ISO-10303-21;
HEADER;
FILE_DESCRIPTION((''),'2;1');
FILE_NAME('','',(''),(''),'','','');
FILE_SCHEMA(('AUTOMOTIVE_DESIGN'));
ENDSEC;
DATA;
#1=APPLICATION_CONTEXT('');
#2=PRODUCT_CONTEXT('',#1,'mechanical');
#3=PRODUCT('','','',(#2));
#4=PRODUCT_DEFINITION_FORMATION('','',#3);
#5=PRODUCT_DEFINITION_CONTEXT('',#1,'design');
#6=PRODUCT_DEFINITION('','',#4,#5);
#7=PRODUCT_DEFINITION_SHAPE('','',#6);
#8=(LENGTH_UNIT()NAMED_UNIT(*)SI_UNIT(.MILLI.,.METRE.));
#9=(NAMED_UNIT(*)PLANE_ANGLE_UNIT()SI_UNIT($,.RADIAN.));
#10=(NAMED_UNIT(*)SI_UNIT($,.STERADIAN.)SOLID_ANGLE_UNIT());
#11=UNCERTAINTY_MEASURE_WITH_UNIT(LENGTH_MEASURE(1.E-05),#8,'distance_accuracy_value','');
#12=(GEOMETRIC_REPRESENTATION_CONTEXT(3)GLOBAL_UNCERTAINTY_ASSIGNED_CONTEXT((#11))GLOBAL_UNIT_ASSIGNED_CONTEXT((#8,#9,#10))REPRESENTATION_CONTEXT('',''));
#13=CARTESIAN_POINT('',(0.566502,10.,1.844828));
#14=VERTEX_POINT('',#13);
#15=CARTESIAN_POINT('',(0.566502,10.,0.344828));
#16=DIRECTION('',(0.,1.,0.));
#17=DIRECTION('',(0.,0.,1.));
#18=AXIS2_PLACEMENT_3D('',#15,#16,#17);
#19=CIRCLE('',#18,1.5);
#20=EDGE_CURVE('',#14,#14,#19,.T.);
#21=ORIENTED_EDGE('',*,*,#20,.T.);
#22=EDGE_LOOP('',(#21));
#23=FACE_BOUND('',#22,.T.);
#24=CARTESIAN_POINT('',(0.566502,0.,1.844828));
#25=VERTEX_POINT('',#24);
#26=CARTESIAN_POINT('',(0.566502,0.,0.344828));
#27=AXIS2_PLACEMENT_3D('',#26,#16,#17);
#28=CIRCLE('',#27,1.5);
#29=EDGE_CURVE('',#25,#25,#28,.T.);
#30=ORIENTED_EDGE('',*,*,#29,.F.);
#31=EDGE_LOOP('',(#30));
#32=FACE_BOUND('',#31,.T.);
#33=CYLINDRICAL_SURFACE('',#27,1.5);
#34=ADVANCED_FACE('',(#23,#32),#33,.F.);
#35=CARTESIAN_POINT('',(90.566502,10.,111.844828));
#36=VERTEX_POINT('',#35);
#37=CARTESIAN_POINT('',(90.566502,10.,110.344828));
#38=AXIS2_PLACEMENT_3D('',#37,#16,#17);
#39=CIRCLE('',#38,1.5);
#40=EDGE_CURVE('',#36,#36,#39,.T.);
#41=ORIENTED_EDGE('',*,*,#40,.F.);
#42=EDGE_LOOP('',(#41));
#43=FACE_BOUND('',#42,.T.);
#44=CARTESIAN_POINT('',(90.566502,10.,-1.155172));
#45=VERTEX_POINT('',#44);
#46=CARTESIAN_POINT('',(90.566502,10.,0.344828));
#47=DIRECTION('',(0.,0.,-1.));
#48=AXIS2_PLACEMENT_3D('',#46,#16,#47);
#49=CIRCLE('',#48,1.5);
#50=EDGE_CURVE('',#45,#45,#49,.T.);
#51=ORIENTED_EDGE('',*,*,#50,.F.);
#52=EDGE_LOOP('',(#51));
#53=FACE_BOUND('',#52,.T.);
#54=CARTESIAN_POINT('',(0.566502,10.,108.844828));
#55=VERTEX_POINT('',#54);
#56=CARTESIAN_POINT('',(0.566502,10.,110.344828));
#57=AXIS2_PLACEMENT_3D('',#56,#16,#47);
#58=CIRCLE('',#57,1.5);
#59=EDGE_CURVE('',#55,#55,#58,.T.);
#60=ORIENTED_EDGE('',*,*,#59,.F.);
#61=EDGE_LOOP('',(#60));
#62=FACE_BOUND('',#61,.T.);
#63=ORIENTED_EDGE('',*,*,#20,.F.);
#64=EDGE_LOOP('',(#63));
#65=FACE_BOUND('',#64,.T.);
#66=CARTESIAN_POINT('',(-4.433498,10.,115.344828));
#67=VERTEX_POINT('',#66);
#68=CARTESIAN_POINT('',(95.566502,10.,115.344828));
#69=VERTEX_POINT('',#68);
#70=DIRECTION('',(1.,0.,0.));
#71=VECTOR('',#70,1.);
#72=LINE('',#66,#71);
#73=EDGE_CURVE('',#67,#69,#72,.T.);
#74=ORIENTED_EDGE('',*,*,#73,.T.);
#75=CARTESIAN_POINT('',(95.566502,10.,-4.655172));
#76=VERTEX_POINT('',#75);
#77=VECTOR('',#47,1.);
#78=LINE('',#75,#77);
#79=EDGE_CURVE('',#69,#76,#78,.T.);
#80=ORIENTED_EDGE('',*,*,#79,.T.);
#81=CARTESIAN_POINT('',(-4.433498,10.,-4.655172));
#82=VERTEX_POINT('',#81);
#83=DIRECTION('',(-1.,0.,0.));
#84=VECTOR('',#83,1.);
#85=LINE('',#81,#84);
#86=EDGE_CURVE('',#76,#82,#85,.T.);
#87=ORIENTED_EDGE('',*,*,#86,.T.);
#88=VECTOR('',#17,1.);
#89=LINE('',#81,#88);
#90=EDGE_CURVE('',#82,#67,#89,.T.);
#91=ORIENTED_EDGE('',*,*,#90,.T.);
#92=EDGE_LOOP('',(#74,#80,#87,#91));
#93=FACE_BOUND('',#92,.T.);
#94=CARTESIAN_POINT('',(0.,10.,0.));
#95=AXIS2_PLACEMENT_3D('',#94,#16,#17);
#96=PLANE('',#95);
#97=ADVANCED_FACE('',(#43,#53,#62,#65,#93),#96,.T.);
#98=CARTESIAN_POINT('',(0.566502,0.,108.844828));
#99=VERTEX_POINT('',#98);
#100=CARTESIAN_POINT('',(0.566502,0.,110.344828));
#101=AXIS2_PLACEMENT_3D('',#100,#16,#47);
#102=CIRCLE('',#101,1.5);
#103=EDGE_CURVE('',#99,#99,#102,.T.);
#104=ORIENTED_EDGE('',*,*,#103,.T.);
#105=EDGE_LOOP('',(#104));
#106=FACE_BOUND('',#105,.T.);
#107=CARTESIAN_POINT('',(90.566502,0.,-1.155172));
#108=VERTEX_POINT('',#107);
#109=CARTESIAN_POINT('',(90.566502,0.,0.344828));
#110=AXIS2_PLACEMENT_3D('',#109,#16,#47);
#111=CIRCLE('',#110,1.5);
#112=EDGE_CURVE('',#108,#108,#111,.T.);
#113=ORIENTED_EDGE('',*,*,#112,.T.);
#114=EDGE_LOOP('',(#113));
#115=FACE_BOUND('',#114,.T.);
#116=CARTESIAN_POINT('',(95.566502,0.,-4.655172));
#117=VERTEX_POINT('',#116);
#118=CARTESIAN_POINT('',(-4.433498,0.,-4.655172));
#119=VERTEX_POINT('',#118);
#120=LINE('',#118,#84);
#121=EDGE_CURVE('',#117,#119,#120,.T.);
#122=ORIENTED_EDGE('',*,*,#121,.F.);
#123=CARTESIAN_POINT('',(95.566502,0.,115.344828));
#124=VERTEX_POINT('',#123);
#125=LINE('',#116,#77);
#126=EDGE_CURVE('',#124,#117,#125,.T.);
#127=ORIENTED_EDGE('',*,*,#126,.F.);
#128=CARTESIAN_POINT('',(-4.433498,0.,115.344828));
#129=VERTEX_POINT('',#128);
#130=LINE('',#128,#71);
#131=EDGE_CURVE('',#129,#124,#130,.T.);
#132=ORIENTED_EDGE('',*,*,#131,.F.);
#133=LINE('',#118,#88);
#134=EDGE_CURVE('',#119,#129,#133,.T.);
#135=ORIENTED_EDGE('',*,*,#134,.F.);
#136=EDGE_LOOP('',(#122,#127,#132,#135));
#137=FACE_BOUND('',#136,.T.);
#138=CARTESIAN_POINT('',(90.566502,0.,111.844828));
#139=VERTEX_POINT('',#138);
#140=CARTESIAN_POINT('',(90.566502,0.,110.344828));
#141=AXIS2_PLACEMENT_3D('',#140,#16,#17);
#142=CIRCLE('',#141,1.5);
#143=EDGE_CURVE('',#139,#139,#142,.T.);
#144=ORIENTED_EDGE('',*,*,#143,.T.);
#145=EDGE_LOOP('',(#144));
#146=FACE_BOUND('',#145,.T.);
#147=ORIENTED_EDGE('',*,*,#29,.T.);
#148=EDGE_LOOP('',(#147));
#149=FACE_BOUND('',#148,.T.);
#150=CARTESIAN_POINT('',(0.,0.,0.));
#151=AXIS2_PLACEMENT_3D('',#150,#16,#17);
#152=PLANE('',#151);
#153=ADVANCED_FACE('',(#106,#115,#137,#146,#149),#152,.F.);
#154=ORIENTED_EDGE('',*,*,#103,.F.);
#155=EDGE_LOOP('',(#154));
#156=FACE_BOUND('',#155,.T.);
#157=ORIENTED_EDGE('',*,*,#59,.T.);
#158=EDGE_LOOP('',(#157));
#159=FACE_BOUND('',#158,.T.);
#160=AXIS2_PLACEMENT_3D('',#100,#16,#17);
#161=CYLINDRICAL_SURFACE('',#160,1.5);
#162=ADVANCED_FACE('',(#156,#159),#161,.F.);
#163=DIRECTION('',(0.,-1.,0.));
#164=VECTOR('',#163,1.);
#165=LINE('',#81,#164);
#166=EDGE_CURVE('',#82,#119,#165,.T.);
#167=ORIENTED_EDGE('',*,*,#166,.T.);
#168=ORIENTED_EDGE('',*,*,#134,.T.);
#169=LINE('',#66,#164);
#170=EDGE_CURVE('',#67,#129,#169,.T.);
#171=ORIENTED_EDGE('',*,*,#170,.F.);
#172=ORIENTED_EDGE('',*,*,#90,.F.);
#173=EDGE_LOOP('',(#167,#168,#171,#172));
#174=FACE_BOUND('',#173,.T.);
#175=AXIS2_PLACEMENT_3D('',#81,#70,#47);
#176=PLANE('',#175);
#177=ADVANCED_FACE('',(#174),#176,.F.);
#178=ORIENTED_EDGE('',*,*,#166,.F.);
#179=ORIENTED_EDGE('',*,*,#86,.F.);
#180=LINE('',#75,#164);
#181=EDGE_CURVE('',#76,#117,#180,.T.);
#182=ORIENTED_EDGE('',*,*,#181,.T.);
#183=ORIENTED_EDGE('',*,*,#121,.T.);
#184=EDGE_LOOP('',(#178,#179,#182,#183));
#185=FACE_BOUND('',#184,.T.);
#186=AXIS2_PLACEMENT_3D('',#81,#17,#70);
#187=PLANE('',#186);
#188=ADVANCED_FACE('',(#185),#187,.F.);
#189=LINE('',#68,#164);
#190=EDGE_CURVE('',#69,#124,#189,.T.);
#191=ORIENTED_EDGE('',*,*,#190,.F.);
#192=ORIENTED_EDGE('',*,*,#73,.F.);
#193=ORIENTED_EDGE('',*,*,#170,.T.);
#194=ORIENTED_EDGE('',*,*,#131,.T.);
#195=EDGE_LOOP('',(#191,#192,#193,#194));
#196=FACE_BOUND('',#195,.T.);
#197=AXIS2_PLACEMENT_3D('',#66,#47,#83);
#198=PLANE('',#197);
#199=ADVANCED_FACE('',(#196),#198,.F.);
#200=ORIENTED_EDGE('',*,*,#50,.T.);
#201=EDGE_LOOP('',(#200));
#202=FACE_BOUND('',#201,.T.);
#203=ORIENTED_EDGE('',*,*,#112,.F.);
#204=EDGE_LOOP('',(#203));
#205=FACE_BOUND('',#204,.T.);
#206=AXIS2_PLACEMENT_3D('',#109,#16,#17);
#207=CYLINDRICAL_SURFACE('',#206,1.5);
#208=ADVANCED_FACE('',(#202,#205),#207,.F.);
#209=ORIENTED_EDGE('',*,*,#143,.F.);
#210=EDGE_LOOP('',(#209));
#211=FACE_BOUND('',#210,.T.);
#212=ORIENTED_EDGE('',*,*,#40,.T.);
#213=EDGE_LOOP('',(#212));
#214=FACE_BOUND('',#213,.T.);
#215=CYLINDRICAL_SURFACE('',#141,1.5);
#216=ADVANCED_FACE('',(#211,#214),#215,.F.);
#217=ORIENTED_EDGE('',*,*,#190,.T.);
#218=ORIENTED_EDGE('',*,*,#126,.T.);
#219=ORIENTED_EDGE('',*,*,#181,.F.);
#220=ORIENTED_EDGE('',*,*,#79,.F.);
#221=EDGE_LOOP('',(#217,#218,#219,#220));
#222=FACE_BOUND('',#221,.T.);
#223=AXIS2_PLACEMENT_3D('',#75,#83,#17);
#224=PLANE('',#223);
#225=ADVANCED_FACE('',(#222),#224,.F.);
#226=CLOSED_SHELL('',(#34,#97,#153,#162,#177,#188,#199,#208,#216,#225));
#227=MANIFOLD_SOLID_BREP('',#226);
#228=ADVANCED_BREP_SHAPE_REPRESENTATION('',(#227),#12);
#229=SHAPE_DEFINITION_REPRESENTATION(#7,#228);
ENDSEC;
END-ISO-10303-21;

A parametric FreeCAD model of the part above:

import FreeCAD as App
import Part
import Sketcher
from FreeCAD import Vector


def add_polygon(sketch, points):
    """Adds a closed chain of lines whose ends are joined by coincident constraints."""
    first, n = sketch.GeometryCount, len(points)
    for a, b in zip(points, points[1:] + points[:1]):
        sketch.addGeometry(Part.LineSegment(App.Vector(*a, 0), App.Vector(*b, 0)), False)
    for i in range(n):
        sketch.addConstraint(Sketcher.Constraint("Coincident", first + i, 2, first + (i + 1) % n, 1))

doc = App.newDocument("Part")
body = doc.addObject("PartDesign::Body", "Body")

sketch1 = body.newObject("Sketcher::SketchObject", "Sketch")
sketch1.AttachmentSupport = (doc.getObject("XZ_Plane"), [""])
sketch1.MapMode = "FlatFace"
add_polygon(sketch1, [(-4, -5), (-4, 115), (96, 115), (96, -5)])
sketch1.addConstraint([
    Sketcher.Constraint("Vertical", 0),
    Sketcher.Constraint("Horizontal", 1),
    Sketcher.Constraint("Vertical", 2),
    Sketcher.Constraint("Horizontal", 3),
    Sketcher.Constraint("DistanceX", 1, 1, 1, 2, 100.0),
    Sketcher.Constraint("DistanceY", 0, 1, 0, 2, 120.0),
    Sketcher.Constraint("DistanceX", 0, 2, -1, 1, 4.433498),
    Sketcher.Constraint("DistanceY", -1, 1, 0, 2, 115.344828),
])
pad1 = body.newObject("PartDesign::Pad", "Pad")
pad1.Profile = sketch1
pad1.Length = 10
pad1.Reversed = True

sketch2 = body.newObject("Sketcher::SketchObject", "Sketch001")
sketch2.AttachmentSupport = (doc.getObject("XZ_Plane"), [""])
sketch2.MapMode = "FlatFace"
sketch2.AttachmentOffset = App.Placement(Vector(0, 0, -10), App.Rotation())
sketch2.addGeometry([
    Part.Circle(Vector(0.6, 0.3, 0), Vector(0, 0, 1), 1.5),
    Part.Circle(Vector(90.6, 0.3, 0), Vector(0, 0, 1), 1.5),
    Part.Circle(Vector(90.6, 110.3, 0), Vector(0, 0, 1), 1.5),
    Part.Circle(Vector(0.6, 110.3, 0), Vector(0, 0, 1), 1.5),
], False)
sketch2.addConstraint([
    Sketcher.Constraint("Equal", 0, 1),
    Sketcher.Constraint("Equal", 1, 2),
    Sketcher.Constraint("Equal", 2, 3),
    Sketcher.Constraint("Horizontal", 0, 3, 1, 3),
    Sketcher.Constraint("Horizontal", 2, 3, 3, 3),
    Sketcher.Constraint("Vertical", 1, 3, 2, 3),
    Sketcher.Constraint("Vertical", 0, 3, 3, 3),
    Sketcher.Constraint("Diameter", 0, 3.0),
    Sketcher.Constraint("DistanceX", 0, 3, 1, 3, 90.0),
    Sketcher.Constraint("DistanceY", 1, 3, 2, 3, 110.0),
    Sketcher.Constraint("DistanceX", -1, 1, 0, 3, 0.566502),
    Sketcher.Constraint("DistanceY", -1, 1, 0, 3, 0.344828),
])
pocket1 = body.newObject("PartDesign::Pocket", "Pocket")
pocket1.Profile = sketch2
pocket1.Type = "ThroughAll"
pocket1.Reversed = True

doc.recompute()
